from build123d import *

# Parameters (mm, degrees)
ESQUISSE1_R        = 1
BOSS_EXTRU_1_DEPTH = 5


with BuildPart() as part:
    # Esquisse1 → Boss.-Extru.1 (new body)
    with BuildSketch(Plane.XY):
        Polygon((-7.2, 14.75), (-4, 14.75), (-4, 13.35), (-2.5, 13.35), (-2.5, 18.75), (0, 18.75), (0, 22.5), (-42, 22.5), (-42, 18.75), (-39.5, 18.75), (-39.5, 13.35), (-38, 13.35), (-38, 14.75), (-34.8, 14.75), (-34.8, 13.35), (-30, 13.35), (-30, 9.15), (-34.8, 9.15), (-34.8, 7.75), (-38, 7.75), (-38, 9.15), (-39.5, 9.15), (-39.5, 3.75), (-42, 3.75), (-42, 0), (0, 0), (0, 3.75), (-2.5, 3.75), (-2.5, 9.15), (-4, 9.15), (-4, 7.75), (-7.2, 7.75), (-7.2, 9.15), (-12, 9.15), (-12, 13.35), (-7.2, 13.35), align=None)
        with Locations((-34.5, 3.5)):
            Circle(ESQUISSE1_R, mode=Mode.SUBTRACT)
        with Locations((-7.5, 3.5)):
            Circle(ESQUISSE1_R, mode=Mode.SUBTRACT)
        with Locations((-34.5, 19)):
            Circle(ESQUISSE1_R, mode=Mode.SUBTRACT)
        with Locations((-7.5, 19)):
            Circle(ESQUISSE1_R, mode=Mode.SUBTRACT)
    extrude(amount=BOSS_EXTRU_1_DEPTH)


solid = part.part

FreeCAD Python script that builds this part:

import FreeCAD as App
import Part
import Sketcher
Q = App.Units.Quantity

doc = App.newDocument("Part")
body = doc.addObject("PartDesign::Body", "Body")

sketch1 = body.newObject("Sketcher::SketchObject", "Sketch")
sketch1.AttachmentSupport = (doc.getObject("XY_Plane"), [""])
sketch1.MapMode = "FlatFace"
sketch1.addGeometry(Part.LineSegment(App.Vector(-7.2, 14.8, 0), App.Vector(-4, 14.8, 0)), False)
sketch1.addGeometry(Part.LineSegment(App.Vector(-4, 14.8, 0), App.Vector(-4, 13.3, 0)), False)
sketch1.addGeometry(Part.LineSegment(App.Vector(-4, 13.3, 0), App.Vector(-2.5, 13.3, 0)), False)
sketch1.addGeometry(Part.LineSegment(App.Vector(-2.5, 13.3, 0), App.Vector(-2.5, 18.8, 0)), False)
sketch1.addGeometry(Part.LineSegment(App.Vector(-2.5, 18.8, 0), App.Vector(0, 18.8, 0)), False)
sketch1.addGeometry(Part.LineSegment(App.Vector(0, 18.8, 0), App.Vector(0, 22.5, 0)), False)
sketch1.addGeometry(Part.LineSegment(App.Vector(0, 22.5, 0), App.Vector(-42, 22.5, 0)), False)
sketch1.addGeometry(Part.LineSegment(App.Vector(-42, 22.5, 0), App.Vector(-42, 18.8, 0)), False)
sketch1.addGeometry(Part.LineSegment(App.Vector(-42, 18.8, 0), App.Vector(-39.5, 18.8, 0)), False)
sketch1.addGeometry(Part.LineSegment(App.Vector(-39.5, 18.8, 0), App.Vector(-39.5, 13.3, 0)), False)
sketch1.addGeometry(Part.LineSegment(App.Vector(-39.5, 13.3, 0), App.Vector(-38, 13.3, 0)), False)
sketch1.addGeometry(Part.LineSegment(App.Vector(-38, 13.3, 0), App.Vector(-38, 14.8, 0)), False)
sketch1.addGeometry(Part.LineSegment(App.Vector(-38, 14.8, 0), App.Vector(-34.8, 14.8, 0)), False)
sketch1.addGeometry(Part.LineSegment(App.Vector(-34.8, 14.8, 0), App.Vector(-34.8, 13.3, 0)), False)
sketch1.addGeometry(Part.LineSegment(App.Vector(-34.8, 13.3, 0), App.Vector(-30, 13.3, 0)), False)
sketch1.addGeometry(Part.LineSegment(App.Vector(-30, 13.3, 0), App.Vector(-30, 9.2, 0)), False)
sketch1.addGeometry(Part.LineSegment(App.Vector(-30, 9.2, 0), App.Vector(-34.8, 9.2, 0)), False)
sketch1.addGeometry(Part.LineSegment(App.Vector(-34.8, 9.2, 0), App.Vector(-34.8, 7.8, 0)), False)
sketch1.addGeometry(Part.LineSegment(App.Vector(-34.8, 7.8, 0), App.Vector(-38, 7.8, 0)), False)
sketch1.addGeometry(Part.LineSegment(App.Vector(-38, 7.8, 0), App.Vector(-38, 9.2, 0)), False)
sketch1.addGeometry(Part.LineSegment(App.Vector(-38, 9.2, 0), App.Vector(-39.5, 9.2, 0)), False)
sketch1.addGeometry(Part.LineSegment(App.Vector(-39.5, 9.2, 0), App.Vector(-39.5, 3.8, 0)), False)
sketch1.addGeometry(Part.LineSegment(App.Vector(-39.5, 3.8, 0), App.Vector(-42, 3.8, 0)), False)
sketch1.addGeometry(Part.LineSegment(App.Vector(-42, 3.8, 0), App.Vector(-42, 0, 0)), False)
sketch1.addGeometry(Part.LineSegment(App.Vector(-42, 0, 0), App.Vector(0, 0, 0)), False)
sketch1.addGeometry(Part.LineSegment(App.Vector(0, 0, 0), App.Vector(0, 3.8, 0)), False)
sketch1.addGeometry(Part.LineSegment(App.Vector(0, 3.8, 0), App.Vector(-2.5, 3.8, 0)), False)
sketch1.addGeometry(Part.LineSegment(App.Vector(-2.5, 3.8, 0), App.Vector(-2.5, 9.2, 0)), False)
sketch1.addGeometry(Part.LineSegment(App.Vector(-2.5, 9.2, 0), App.Vector(-4, 9.2, 0)), False)
sketch1.addGeometry(Part.LineSegment(App.Vector(-4, 9.2, 0), App.Vector(-4, 7.8, 0)), False)
sketch1.addGeometry(Part.LineSegment(App.Vector(-4, 7.8, 0), App.Vector(-7.2, 7.8, 0)), False)
sketch1.addGeometry(Part.LineSegment(App.Vector(-7.2, 7.8, 0), App.Vector(-7.2, 9.2, 0)), False)
sketch1.addGeometry(Part.LineSegment(App.Vector(-7.2, 9.2, 0), App.Vector(-12, 9.2, 0)), False)
sketch1.addGeometry(Part.LineSegment(App.Vector(-12, 9.2, 0), App.Vector(-12, 13.3, 0)), False)
sketch1.addGeometry(Part.LineSegment(App.Vector(-12, 13.3, 0), App.Vector(-7.2, 13.3, 0)), False)
sketch1.addGeometry(Part.LineSegment(App.Vector(-7.2, 13.3, 0), App.Vector(-7.2, 14.8, 0)), False)
sketch1.addGeometry(Part.Circle(App.Vector(-34.5, 3.5, 0), App.Vector(0, 0, 1), 1), False)
sketch1.addGeometry(Part.Circle(App.Vector(-7.5, 3.5, 0), App.Vector(0, 0, 1), 1), False)
sketch1.addGeometry(Part.Circle(App.Vector(-34.5, 19, 0), App.Vector(0, 0, 1), 1), False)
sketch1.addGeometry(Part.Circle(App.Vector(-7.5, 19, 0), App.Vector(0, 0, 1), 1), False)
sketch1.addConstraint(Sketcher.Constraint("Coincident", 0, 2, 1, 1))
sketch1.addConstraint(Sketcher.Constraint("Coincident", 1, 2, 2, 1))
sketch1.addConstraint(Sketcher.Constraint("Coincident", 2, 2, 3, 1))
sketch1.addConstraint(Sketcher.Constraint("Coincident", 3, 2, 4, 1))
sketch1.addConstraint(Sketcher.Constraint("Coincident", 4, 2, 5, 1))
sketch1.addConstraint(Sketcher.Constraint("Coincident", 5, 2, 6, 1))
sketch1.addConstraint(Sketcher.Constraint("Coincident", 6, 2, 7, 1))
sketch1.addConstraint(Sketcher.Constraint("Coincident", 7, 2, 8, 1))
sketch1.addConstraint(Sketcher.Constraint("Coincident", 8, 2, 9, 1))
sketch1.addConstraint(Sketcher.Constraint("Coincident", 9, 2, 10, 1))
sketch1.addConstraint(Sketcher.Constraint("Coincident", 10, 2, 11, 1))
sketch1.addConstraint(Sketcher.Constraint("Coincident", 11, 2, 12, 1))
sketch1.addConstraint(Sketcher.Constraint("Coincident", 12, 2, 13, 1))
sketch1.addConstraint(Sketcher.Constraint("Coincident", 13, 2, 14, 1))
sketch1.addConstraint(Sketcher.Constraint("Coincident", 14, 2, 15, 1))
sketch1.addConstraint(Sketcher.Constraint("Coincident", 15, 2, 16, 1))
sketch1.addConstraint(Sketcher.Constraint("Coincident", 16, 2, 17, 1))
sketch1.addConstraint(Sketcher.Constraint("Coincident", 17, 2, 18, 1))
sketch1.addConstraint(Sketcher.Constraint("Coincident", 18, 2, 19, 1))
sketch1.addConstraint(Sketcher.Constraint("Coincident", 19, 2, 20, 1))
sketch1.addConstraint(Sketcher.Constraint("Coincident", 20, 2, 21, 1))
sketch1.addConstraint(Sketcher.Constraint("Coincident", 21, 2, 22, 1))
sketch1.addConstraint(Sketcher.Constraint("Coincident", 22, 2, 23, 1))
sketch1.addConstraint(Sketcher.Constraint("Coincident", 23, 2, 24, 1))
sketch1.addConstraint(Sketcher.Constraint("Coincident", 24, 2, 25, 1))
sketch1.addConstraint(Sketcher.Constraint("Coincident", 25, 2, 26, 1))
sketch1.addConstraint(Sketcher.Constraint("Coincident", 26, 2, 27, 1))
sketch1.addConstraint(Sketcher.Constraint("Coincident", 27, 2, 28, 1))
sketch1.addConstraint(Sketcher.Constraint("Coincident", 28, 2, 29, 1))
sketch1.addConstraint(Sketcher.Constraint("Coincident", 29, 2, 30, 1))
sketch1.addConstraint(Sketcher.Constraint("Coincident", 30, 2, 31, 1))
sketch1.addConstraint(Sketcher.Constraint("Coincident", 31, 2, 32, 1))
sketch1.addConstraint(Sketcher.Constraint("Coincident", 32, 2, 33, 1))
sketch1.addConstraint(Sketcher.Constraint("Coincident", 33, 2, 34, 1))
sketch1.addConstraint(Sketcher.Constraint("Coincident", 34, 2, 35, 1))
sketch1.addConstraint(Sketcher.Constraint("Coincident", 35, 2, 0, 1))
sketch1.addConstraint(Sketcher.Constraint("Horizontal", 0))
sketch1.addConstraint(Sketcher.Constraint("Vertical", 1))
sketch1.addConstraint(Sketcher.Constraint("Horizontal", 2))
sketch1.addConstraint(Sketcher.Constraint("Vertical", 3))
sketch1.addConstraint(Sketcher.Constraint("Horizontal", 4))
sketch1.addConstraint(Sketcher.Constraint("Vertical", 5))
sketch1.addConstraint(Sketcher.Constraint("Horizontal", 6))
sketch1.addConstraint(Sketcher.Constraint("Vertical", 7))
sketch1.addConstraint(Sketcher.Constraint("Horizontal", 8))
sketch1.addConstraint(Sketcher.Constraint("Vertical", 9))
sketch1.addConstraint(Sketcher.Constraint("Horizontal", 10))
sketch1.addConstraint(Sketcher.Constraint("Vertical", 11))
sketch1.addConstraint(Sketcher.Constraint("Horizontal", 12))
sketch1.addConstraint(Sketcher.Constraint("Vertical", 13))
sketch1.addConstraint(Sketcher.Constraint("Horizontal", 14))
sketch1.addConstraint(Sketcher.Constraint("Vertical", 15))
sketch1.addConstraint(Sketcher.Constraint("Horizontal", 16))
sketch1.addConstraint(Sketcher.Constraint("Vertical", 17))
sketch1.addConstraint(Sketcher.Constraint("Horizontal", 18))
sketch1.addConstraint(Sketcher.Constraint("Vertical", 19))
sketch1.addConstraint(Sketcher.Constraint("Horizontal", 20))
sketch1.addConstraint(Sketcher.Constraint("Vertical", 21))
sketch1.addConstraint(Sketcher.Constraint("Horizontal", 22))
sketch1.addConstraint(Sketcher.Constraint("Vertical", 23))
sketch1.addConstraint(Sketcher.Constraint("Horizontal", 24))
sketch1.addConstraint(Sketcher.Constraint("Vertical", 25))
sketch1.addConstraint(Sketcher.Constraint("Horizontal", 26))
sketch1.addConstraint(Sketcher.Constraint("Vertical", 27))
sketch1.addConstraint(Sketcher.Constraint("Horizontal", 28))
sketch1.addConstraint(Sketcher.Constraint("Vertical", 29))
sketch1.addConstraint(Sketcher.Constraint("Horizontal", 30))
sketch1.addConstraint(Sketcher.Constraint("Vertical", 31))
sketch1.addConstraint(Sketcher.Constraint("Horizontal", 32))
sketch1.addConstraint(Sketcher.Constraint("Vertical", 33))
sketch1.addConstraint(Sketcher.Constraint("Horizontal", 34))
sketch1.addConstraint(Sketcher.Constraint("Vertical", 35))
sketch1.addConstraint(Sketcher.Constraint("Coincident", 24, 2, -1, 1))
sketch1.addConstraint(Sketcher.Constraint("Equal", 36, 37))
sketch1.addConstraint(Sketcher.Constraint("Equal", 37, 38))
sketch1.addConstraint(Sketcher.Constraint("Equal", 38, 39))
sketch1.addConstraint(Sketcher.Constraint("PointOnObject", 4, 2, -2))
sketch1.addConstraint(Sketcher.Constraint("Horizontal", 36, 3, 37, 3))
sketch1.addConstraint(Sketcher.Constraint("Horizontal", 38, 3, 39, 3))
sketch1.addConstraint(Sketcher.Constraint("Horizontal", 4, 2, 7, 2))
sketch1.addConstraint(Sketcher.Constraint("Horizontal", 2, 2, 9, 2))
sketch1.addConstraint(Sketcher.Constraint("Horizontal", 0, 2, 11, 2))
sketch1.addConstraint(Sketcher.Constraint("Horizontal", 10, 2, 13, 2))
sketch1.addConstraint(Sketcher.Constraint("Horizontal", 16, 2, 19, 2))
sketch1.addConstraint(Sketcher.Constraint("Horizontal", 22, 2, 25, 2))
sketch1.addConstraint(Sketcher.Constraint("Horizontal", 20, 2, 27, 2))
sketch1.addConstraint(Sketcher.Constraint("Horizontal", 18, 2, 29, 2))
sketch1.addConstraint(Sketcher.Constraint("Horizontal", 28, 2, 31, 2))
sketch1.addConstraint(Sketcher.Constraint("Horizontal", 14, 2, 33, 2))
sketch1.addConstraint(Sketcher.Constraint("Vertical", 36, 3, 38, 3))
sketch1.addConstraint(Sketcher.Constraint("Vertical", 37, 3, 39, 3))
sketch1.addConstraint(Sketcher.Constraint("Vertical", 13, 2, 16, 2))
sketch1.addConstraint(Sketcher.Constraint("Vertical", 11, 2, 18, 2))
sketch1.addConstraint(Sketcher.Constraint("Vertical", 9, 2, 20, 2))
sketch1.addConstraint(Sketcher.Constraint("Vertical", 7, 2, 22, 2))
sketch1.addConstraint(Sketcher.Constraint("Vertical", 3, 2, 26, 2))
sketch1.addConstraint(Sketcher.Constraint("Vertical", 1, 2, 28, 2))
sketch1.addConstraint(Sketcher.Constraint("Vertical", 31, 2, 34, 2))
sketch1.addConstraint(Sketcher.Constraint("Equal", 4, 8))
sketch1.addConstraint(Sketcher.Constraint("Equal", 2, 10))
sketch1.addConstraint(Sketcher.Constraint("Equal", 0, 12))
sketch1.addConstraint(Sketcher.Constraint("Equal", 16, 32))
sketch1.addConstraint(Sketcher.Constraint("Equal", 13, 17))
sketch1.addConstraint(Sketcher.Constraint("Equal", 9, 21))
sketch1.addConstraint(Sketcher.Constraint("Equal", 7, 23))
sketch1.addConstraint(Sketcher.Constraint("Diameter", 36, Q("2 mm")))
sketch1.addConstraint(Sketcher.Constraint("DistanceX", 6, 2, 6, 1, Q("42 mm")))
sketch1.addConstraint(Sketcher.Constraint("DistanceX", 0, 1, 0, 2, Q("3.2 mm")))
sketch1.addConstraint(Sketcher.Constraint("DistanceX", 2, 1, 2, 2, Q("1.5 mm")))
sketch1.addConstraint(Sketcher.Constraint("DistanceX", 4, 1, 4, 2, Q("2.5 mm")))
sketch1.addConstraint(Sketcher.Constraint("DistanceX", 14, 1, 14, 2, Q("4.8 mm")))
sketch1.addConstraint(Sketcher.Constraint("DistanceY", 1, 2, 1, 1, Q("1.4 mm")))
sketch1.addConstraint(Sketcher.Constraint("DistanceY", 3, 1, 3, 2, Q("5.4 mm")))
sketch1.addConstraint(Sketcher.Constraint("DistanceY", 15, 2, 15, 1, Q("4.2 mm")))
sketch1.addConstraint(Sketcher.Constraint("DistanceY", -1, 1, 38, 3, Q("19 mm")))
sketch1.addConstraint(Sketcher.Constraint("DistanceX", 36, 3, 37, 3, Q("27 mm")))
sketch1.addConstraint(Sketcher.Constraint("DistanceX", 39, 3, 2, 2, Q("5 mm")))
sketch1.addConstraint(Sketcher.Constraint("DistanceY", 36, 3, 6, 2, Q("19 mm")))
sketch1.addConstraint(Sketcher.Constraint("DistanceY", 5, 1, 5, 2, Q("3.75 mm")))
pad1 = body.newObject("PartDesign::Pad", "Pad")
pad1.Profile = sketch1
pad1.Length = 5

doc.recompute()
